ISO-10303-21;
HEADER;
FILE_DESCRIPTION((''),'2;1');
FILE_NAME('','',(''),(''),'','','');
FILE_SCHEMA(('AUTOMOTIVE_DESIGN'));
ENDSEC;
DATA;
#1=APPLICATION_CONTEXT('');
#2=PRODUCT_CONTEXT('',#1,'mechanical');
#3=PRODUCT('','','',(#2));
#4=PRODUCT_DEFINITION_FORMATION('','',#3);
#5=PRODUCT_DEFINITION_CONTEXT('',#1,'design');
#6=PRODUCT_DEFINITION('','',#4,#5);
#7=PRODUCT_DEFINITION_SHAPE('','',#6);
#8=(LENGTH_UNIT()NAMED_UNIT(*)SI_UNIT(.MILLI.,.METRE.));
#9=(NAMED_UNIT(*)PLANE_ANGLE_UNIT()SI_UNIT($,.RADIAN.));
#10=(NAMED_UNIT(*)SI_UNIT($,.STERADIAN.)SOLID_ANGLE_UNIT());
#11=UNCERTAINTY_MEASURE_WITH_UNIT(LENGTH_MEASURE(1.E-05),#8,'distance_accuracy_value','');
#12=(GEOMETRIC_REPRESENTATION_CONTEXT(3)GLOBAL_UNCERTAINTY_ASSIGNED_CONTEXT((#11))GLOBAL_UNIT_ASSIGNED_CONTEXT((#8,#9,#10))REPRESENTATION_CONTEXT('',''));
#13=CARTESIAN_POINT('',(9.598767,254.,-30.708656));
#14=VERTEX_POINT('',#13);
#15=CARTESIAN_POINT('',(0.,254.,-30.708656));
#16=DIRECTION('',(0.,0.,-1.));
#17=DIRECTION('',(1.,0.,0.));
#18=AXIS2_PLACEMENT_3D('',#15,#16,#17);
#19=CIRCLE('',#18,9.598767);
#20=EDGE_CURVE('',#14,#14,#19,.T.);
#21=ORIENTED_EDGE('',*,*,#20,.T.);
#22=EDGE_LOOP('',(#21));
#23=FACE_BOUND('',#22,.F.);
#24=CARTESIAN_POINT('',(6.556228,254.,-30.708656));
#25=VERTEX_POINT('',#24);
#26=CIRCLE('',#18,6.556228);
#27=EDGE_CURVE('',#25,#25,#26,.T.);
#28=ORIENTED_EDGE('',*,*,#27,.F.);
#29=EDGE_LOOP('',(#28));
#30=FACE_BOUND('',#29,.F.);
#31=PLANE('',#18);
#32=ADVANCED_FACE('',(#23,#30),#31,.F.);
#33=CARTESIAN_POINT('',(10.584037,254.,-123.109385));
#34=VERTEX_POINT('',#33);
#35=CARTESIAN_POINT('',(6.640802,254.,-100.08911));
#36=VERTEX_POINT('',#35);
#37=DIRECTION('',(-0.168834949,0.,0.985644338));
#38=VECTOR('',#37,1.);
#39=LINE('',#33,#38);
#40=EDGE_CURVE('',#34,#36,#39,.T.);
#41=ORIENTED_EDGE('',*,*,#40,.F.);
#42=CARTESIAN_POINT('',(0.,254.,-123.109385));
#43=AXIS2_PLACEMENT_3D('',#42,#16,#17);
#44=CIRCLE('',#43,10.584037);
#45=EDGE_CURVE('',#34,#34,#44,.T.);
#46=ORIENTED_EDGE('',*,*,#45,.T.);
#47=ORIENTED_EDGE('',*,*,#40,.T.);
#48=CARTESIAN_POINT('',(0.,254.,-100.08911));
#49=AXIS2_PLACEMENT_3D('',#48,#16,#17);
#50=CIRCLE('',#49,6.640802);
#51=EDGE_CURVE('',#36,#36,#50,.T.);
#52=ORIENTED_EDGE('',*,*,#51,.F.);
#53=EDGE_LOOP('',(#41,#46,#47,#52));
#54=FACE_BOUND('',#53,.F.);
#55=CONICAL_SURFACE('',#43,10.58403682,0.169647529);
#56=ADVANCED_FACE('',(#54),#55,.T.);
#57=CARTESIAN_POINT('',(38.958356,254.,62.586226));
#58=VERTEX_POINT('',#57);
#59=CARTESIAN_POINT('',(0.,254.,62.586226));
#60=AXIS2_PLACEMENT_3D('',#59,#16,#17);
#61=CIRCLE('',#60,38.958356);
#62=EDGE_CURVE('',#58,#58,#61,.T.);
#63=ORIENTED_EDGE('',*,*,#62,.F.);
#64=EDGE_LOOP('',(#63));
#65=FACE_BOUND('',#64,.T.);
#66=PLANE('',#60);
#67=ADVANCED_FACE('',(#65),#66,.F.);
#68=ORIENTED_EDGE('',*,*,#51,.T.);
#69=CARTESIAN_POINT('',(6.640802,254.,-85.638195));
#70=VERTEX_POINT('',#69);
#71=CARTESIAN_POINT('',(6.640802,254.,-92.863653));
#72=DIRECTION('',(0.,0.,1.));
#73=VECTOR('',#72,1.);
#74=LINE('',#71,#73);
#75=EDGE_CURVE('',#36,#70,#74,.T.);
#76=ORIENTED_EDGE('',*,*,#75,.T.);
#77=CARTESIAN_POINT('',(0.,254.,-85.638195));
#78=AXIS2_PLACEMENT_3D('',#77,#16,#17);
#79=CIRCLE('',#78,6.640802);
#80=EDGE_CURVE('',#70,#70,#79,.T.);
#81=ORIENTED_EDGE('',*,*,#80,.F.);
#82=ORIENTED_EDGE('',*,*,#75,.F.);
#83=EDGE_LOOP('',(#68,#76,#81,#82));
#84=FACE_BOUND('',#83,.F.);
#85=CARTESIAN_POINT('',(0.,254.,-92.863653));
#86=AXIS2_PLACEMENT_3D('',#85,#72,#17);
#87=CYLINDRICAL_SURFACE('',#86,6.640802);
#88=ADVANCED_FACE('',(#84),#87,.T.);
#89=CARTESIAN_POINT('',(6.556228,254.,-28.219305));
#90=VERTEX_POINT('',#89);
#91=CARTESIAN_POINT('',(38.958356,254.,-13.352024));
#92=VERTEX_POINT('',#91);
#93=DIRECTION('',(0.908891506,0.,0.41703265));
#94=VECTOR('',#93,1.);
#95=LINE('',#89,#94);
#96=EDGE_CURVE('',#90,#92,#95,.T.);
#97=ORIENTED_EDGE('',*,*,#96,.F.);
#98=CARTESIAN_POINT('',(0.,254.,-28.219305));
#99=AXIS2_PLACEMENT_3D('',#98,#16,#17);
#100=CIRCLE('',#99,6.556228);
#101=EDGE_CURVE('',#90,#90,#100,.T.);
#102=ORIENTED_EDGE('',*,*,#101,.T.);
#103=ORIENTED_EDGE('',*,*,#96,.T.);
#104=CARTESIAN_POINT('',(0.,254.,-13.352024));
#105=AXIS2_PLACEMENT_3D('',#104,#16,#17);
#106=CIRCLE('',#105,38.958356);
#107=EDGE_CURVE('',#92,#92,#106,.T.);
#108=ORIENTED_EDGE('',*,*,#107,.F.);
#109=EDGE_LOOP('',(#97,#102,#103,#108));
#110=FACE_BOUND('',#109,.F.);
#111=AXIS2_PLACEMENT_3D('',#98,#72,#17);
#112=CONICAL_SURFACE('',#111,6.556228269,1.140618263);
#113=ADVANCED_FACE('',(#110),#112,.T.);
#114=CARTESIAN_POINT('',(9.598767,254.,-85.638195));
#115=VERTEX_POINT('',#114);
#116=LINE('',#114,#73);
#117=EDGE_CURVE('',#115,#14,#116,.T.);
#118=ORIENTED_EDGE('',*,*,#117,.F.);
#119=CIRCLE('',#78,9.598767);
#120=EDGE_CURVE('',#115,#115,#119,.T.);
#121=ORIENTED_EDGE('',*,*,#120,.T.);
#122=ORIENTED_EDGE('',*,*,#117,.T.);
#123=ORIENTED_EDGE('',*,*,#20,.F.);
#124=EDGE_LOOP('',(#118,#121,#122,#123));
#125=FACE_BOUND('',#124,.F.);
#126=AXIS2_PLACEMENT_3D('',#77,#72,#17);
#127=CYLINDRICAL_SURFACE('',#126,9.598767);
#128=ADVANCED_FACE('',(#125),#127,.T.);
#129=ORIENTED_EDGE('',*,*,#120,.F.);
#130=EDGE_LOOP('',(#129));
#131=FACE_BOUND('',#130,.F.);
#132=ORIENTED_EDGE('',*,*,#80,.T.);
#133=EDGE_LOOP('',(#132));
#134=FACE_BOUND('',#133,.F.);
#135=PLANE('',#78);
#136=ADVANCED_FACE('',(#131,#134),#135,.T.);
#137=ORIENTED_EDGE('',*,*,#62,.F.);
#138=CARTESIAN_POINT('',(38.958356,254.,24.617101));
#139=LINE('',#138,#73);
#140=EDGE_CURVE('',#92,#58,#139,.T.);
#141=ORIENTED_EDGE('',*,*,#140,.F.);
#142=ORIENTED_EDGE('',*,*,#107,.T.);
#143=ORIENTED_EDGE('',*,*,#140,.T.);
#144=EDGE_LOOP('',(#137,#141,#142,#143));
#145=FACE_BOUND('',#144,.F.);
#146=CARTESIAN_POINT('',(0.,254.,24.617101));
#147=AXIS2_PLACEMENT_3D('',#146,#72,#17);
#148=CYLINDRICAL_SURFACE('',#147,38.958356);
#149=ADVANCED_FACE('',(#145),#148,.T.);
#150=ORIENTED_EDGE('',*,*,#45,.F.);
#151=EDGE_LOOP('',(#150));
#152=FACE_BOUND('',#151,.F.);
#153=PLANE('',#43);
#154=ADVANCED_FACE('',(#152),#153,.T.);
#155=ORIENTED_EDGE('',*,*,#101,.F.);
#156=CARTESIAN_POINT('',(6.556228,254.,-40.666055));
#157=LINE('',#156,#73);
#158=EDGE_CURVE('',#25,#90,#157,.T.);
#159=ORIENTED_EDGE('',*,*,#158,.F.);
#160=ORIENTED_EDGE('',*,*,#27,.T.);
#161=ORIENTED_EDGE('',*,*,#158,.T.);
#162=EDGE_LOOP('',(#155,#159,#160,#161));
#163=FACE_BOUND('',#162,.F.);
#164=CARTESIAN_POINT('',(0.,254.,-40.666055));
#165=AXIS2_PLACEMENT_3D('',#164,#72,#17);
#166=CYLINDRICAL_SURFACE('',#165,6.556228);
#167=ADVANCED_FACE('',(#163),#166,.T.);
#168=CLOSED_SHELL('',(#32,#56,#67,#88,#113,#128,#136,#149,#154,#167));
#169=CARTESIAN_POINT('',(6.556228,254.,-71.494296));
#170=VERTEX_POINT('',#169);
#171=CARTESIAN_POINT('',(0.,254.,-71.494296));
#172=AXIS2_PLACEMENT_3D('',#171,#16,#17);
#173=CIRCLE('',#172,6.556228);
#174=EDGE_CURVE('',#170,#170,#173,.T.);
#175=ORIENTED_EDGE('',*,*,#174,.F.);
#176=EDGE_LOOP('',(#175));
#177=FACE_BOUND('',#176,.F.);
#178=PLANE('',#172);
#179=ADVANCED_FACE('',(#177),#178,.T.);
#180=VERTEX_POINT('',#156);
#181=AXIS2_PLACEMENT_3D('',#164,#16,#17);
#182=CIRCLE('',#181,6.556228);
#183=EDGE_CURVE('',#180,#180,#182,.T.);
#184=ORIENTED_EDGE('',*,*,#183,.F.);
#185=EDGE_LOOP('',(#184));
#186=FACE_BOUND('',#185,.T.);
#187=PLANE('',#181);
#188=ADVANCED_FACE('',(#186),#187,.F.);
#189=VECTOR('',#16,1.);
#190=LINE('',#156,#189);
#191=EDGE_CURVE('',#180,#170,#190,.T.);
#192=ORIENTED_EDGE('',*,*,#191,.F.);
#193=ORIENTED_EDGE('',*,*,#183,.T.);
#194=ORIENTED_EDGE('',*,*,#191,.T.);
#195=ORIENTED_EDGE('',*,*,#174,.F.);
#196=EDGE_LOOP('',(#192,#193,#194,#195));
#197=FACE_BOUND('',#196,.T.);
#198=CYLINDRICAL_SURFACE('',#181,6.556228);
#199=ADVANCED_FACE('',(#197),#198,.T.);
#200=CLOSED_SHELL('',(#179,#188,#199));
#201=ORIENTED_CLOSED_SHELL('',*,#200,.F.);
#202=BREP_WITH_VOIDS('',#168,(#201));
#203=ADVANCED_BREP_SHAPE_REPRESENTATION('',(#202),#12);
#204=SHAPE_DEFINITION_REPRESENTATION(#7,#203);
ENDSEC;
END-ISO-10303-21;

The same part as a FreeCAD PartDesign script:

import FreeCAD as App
import Part
import Sketcher

V = App.Vector
Q = App.Units.Quantity


def add_polygon(sketch, points):
    """Adds a closed chain of lines whose ends are joined by coincident constraints."""
    first, n = sketch.GeometryCount, len(points)
    for a, b in zip(points, points[1:] + points[:1]):
        sketch.addGeometry(Part.LineSegment(App.Vector(*a, 0), App.Vector(*b, 0)), False)
    for i in range(n):
        sketch.addConstraint(Sketcher.Constraint("Coincident", first + i, 2, first + (i + 1) % n, 1))

doc = App.newDocument("Part")
body = doc.addObject("PartDesign::Body", "Body")

sketch1 = body.newObject("Sketcher::SketchObject", "Sketch")
sketch1.AttachmentSupport = (doc.getObject("XZ_Plane"), [""])
sketch1.MapMode = "FlatFace"
add_polygon(sketch1, [(0, 62.6), (0, -40.7), (6.6, -40.7), (6.6, -71.5), (0, -71.5), (0, -82.7), (0, -100.1), (0, -123.1), (10.6, -123.1), (6.6, -100.1), (6.6, -85.6), (9.6, -85.6), (9.6, -30.7), (6.6, -30.7), (6.6, -28.2), (39, -13.4), (39, 62.6)])
sketch1.addConstraint([
    Sketcher.Constraint("Vertical", 0),
    Sketcher.Constraint("Horizontal", 1),
    Sketcher.Constraint("Vertical", 2),
    Sketcher.Constraint("Horizontal", 3),
    Sketcher.Constraint("Vertical", 4),
    Sketcher.Constraint("Vertical", 5),
    Sketcher.Constraint("Vertical", 6),
    Sketcher.Constraint("Horizontal", 7),
    Sketcher.Constraint("Vertical", 9),
    Sketcher.Constraint("Horizontal", 10),
    Sketcher.Constraint("Vertical", 11),
    Sketcher.Constraint("Horizontal", 12),
    Sketcher.Constraint("Vertical", 13),
    Sketcher.Constraint("Vertical", 15),
    Sketcher.Constraint("Horizontal", 16),
    Sketcher.Constraint("PointOnObject", 0, 2, -2),
    Sketcher.Constraint("PointOnObject", 3, 2, -2),
    Sketcher.Constraint("Horizontal", 5, 2, 8, 2),
    Sketcher.Constraint("Vertical", 2, 2, 12, 2),
    Sketcher.Constraint("DistanceY", 4, 2, 4, 1, Q("11.2141 mm")),
    Sketcher.Constraint("DistanceX", 1, 1, 1, 2, Q("6.556228 mm")),
    Sketcher.Constraint("DistanceX", 12, 2, 12, 1, Q("3.042539 mm")),
    Sketcher.Constraint("DistanceY", 0, 2, 0, 1, Q("103.252281 mm")),
    Sketcher.Constraint("DistanceY", 2, 2, 2, 1, Q("30.828241 mm")),
    Sketcher.Constraint("DistanceY", 11, 1, 11, 2, Q("54.92954 mm")),
    Sketcher.Constraint("DistanceY", 13, 1, 13, 2, Q("2.489351 mm")),
    Sketcher.Constraint("DistanceY", 15, 1, 15, 2, Q("75.93825 mm")),
    Sketcher.Constraint("DistanceY", 9, 2, 4, 2, Q("2.929799 mm")),
    Sketcher.Constraint("Distance", 8, Q("23.355559 mm")),
    Sketcher.Constraint("Distance", 14, Q("35.65016 mm")),
    Sketcher.Constraint("DistanceX", 7, 1, 7, 2, Q("10.584037 mm")),
    Sketcher.Constraint("DistanceX", 10, 1, 10, 2, Q("2.957965 mm")),
    Sketcher.Constraint("DistanceY", 5, 2, 5, 1, Q("17.380714 mm")),
    Sketcher.Constraint("DistanceY", 5, 2, -1, 1, Q("100.08911 mm")),
])
revolution = body.newObject("PartDesign::Revolution", "Revolution")
revolution.Profile = sketch1
revolution.ReferenceAxis = (sketch1, ["V_Axis"])
revolution.Angle = 360
body2 = doc.addObject("PartDesign::Body", "Body001")
doc.recompute()

body.Placement = App.Placement(V(0, 254, 0), App.Rotation(V(0, 0, 1), 0))
boolean = body2.newObject("PartDesign::Boolean", "Boolean")
boolean.Type = "Fuse"
boolean.addObjects([body])

doc.recompute()
